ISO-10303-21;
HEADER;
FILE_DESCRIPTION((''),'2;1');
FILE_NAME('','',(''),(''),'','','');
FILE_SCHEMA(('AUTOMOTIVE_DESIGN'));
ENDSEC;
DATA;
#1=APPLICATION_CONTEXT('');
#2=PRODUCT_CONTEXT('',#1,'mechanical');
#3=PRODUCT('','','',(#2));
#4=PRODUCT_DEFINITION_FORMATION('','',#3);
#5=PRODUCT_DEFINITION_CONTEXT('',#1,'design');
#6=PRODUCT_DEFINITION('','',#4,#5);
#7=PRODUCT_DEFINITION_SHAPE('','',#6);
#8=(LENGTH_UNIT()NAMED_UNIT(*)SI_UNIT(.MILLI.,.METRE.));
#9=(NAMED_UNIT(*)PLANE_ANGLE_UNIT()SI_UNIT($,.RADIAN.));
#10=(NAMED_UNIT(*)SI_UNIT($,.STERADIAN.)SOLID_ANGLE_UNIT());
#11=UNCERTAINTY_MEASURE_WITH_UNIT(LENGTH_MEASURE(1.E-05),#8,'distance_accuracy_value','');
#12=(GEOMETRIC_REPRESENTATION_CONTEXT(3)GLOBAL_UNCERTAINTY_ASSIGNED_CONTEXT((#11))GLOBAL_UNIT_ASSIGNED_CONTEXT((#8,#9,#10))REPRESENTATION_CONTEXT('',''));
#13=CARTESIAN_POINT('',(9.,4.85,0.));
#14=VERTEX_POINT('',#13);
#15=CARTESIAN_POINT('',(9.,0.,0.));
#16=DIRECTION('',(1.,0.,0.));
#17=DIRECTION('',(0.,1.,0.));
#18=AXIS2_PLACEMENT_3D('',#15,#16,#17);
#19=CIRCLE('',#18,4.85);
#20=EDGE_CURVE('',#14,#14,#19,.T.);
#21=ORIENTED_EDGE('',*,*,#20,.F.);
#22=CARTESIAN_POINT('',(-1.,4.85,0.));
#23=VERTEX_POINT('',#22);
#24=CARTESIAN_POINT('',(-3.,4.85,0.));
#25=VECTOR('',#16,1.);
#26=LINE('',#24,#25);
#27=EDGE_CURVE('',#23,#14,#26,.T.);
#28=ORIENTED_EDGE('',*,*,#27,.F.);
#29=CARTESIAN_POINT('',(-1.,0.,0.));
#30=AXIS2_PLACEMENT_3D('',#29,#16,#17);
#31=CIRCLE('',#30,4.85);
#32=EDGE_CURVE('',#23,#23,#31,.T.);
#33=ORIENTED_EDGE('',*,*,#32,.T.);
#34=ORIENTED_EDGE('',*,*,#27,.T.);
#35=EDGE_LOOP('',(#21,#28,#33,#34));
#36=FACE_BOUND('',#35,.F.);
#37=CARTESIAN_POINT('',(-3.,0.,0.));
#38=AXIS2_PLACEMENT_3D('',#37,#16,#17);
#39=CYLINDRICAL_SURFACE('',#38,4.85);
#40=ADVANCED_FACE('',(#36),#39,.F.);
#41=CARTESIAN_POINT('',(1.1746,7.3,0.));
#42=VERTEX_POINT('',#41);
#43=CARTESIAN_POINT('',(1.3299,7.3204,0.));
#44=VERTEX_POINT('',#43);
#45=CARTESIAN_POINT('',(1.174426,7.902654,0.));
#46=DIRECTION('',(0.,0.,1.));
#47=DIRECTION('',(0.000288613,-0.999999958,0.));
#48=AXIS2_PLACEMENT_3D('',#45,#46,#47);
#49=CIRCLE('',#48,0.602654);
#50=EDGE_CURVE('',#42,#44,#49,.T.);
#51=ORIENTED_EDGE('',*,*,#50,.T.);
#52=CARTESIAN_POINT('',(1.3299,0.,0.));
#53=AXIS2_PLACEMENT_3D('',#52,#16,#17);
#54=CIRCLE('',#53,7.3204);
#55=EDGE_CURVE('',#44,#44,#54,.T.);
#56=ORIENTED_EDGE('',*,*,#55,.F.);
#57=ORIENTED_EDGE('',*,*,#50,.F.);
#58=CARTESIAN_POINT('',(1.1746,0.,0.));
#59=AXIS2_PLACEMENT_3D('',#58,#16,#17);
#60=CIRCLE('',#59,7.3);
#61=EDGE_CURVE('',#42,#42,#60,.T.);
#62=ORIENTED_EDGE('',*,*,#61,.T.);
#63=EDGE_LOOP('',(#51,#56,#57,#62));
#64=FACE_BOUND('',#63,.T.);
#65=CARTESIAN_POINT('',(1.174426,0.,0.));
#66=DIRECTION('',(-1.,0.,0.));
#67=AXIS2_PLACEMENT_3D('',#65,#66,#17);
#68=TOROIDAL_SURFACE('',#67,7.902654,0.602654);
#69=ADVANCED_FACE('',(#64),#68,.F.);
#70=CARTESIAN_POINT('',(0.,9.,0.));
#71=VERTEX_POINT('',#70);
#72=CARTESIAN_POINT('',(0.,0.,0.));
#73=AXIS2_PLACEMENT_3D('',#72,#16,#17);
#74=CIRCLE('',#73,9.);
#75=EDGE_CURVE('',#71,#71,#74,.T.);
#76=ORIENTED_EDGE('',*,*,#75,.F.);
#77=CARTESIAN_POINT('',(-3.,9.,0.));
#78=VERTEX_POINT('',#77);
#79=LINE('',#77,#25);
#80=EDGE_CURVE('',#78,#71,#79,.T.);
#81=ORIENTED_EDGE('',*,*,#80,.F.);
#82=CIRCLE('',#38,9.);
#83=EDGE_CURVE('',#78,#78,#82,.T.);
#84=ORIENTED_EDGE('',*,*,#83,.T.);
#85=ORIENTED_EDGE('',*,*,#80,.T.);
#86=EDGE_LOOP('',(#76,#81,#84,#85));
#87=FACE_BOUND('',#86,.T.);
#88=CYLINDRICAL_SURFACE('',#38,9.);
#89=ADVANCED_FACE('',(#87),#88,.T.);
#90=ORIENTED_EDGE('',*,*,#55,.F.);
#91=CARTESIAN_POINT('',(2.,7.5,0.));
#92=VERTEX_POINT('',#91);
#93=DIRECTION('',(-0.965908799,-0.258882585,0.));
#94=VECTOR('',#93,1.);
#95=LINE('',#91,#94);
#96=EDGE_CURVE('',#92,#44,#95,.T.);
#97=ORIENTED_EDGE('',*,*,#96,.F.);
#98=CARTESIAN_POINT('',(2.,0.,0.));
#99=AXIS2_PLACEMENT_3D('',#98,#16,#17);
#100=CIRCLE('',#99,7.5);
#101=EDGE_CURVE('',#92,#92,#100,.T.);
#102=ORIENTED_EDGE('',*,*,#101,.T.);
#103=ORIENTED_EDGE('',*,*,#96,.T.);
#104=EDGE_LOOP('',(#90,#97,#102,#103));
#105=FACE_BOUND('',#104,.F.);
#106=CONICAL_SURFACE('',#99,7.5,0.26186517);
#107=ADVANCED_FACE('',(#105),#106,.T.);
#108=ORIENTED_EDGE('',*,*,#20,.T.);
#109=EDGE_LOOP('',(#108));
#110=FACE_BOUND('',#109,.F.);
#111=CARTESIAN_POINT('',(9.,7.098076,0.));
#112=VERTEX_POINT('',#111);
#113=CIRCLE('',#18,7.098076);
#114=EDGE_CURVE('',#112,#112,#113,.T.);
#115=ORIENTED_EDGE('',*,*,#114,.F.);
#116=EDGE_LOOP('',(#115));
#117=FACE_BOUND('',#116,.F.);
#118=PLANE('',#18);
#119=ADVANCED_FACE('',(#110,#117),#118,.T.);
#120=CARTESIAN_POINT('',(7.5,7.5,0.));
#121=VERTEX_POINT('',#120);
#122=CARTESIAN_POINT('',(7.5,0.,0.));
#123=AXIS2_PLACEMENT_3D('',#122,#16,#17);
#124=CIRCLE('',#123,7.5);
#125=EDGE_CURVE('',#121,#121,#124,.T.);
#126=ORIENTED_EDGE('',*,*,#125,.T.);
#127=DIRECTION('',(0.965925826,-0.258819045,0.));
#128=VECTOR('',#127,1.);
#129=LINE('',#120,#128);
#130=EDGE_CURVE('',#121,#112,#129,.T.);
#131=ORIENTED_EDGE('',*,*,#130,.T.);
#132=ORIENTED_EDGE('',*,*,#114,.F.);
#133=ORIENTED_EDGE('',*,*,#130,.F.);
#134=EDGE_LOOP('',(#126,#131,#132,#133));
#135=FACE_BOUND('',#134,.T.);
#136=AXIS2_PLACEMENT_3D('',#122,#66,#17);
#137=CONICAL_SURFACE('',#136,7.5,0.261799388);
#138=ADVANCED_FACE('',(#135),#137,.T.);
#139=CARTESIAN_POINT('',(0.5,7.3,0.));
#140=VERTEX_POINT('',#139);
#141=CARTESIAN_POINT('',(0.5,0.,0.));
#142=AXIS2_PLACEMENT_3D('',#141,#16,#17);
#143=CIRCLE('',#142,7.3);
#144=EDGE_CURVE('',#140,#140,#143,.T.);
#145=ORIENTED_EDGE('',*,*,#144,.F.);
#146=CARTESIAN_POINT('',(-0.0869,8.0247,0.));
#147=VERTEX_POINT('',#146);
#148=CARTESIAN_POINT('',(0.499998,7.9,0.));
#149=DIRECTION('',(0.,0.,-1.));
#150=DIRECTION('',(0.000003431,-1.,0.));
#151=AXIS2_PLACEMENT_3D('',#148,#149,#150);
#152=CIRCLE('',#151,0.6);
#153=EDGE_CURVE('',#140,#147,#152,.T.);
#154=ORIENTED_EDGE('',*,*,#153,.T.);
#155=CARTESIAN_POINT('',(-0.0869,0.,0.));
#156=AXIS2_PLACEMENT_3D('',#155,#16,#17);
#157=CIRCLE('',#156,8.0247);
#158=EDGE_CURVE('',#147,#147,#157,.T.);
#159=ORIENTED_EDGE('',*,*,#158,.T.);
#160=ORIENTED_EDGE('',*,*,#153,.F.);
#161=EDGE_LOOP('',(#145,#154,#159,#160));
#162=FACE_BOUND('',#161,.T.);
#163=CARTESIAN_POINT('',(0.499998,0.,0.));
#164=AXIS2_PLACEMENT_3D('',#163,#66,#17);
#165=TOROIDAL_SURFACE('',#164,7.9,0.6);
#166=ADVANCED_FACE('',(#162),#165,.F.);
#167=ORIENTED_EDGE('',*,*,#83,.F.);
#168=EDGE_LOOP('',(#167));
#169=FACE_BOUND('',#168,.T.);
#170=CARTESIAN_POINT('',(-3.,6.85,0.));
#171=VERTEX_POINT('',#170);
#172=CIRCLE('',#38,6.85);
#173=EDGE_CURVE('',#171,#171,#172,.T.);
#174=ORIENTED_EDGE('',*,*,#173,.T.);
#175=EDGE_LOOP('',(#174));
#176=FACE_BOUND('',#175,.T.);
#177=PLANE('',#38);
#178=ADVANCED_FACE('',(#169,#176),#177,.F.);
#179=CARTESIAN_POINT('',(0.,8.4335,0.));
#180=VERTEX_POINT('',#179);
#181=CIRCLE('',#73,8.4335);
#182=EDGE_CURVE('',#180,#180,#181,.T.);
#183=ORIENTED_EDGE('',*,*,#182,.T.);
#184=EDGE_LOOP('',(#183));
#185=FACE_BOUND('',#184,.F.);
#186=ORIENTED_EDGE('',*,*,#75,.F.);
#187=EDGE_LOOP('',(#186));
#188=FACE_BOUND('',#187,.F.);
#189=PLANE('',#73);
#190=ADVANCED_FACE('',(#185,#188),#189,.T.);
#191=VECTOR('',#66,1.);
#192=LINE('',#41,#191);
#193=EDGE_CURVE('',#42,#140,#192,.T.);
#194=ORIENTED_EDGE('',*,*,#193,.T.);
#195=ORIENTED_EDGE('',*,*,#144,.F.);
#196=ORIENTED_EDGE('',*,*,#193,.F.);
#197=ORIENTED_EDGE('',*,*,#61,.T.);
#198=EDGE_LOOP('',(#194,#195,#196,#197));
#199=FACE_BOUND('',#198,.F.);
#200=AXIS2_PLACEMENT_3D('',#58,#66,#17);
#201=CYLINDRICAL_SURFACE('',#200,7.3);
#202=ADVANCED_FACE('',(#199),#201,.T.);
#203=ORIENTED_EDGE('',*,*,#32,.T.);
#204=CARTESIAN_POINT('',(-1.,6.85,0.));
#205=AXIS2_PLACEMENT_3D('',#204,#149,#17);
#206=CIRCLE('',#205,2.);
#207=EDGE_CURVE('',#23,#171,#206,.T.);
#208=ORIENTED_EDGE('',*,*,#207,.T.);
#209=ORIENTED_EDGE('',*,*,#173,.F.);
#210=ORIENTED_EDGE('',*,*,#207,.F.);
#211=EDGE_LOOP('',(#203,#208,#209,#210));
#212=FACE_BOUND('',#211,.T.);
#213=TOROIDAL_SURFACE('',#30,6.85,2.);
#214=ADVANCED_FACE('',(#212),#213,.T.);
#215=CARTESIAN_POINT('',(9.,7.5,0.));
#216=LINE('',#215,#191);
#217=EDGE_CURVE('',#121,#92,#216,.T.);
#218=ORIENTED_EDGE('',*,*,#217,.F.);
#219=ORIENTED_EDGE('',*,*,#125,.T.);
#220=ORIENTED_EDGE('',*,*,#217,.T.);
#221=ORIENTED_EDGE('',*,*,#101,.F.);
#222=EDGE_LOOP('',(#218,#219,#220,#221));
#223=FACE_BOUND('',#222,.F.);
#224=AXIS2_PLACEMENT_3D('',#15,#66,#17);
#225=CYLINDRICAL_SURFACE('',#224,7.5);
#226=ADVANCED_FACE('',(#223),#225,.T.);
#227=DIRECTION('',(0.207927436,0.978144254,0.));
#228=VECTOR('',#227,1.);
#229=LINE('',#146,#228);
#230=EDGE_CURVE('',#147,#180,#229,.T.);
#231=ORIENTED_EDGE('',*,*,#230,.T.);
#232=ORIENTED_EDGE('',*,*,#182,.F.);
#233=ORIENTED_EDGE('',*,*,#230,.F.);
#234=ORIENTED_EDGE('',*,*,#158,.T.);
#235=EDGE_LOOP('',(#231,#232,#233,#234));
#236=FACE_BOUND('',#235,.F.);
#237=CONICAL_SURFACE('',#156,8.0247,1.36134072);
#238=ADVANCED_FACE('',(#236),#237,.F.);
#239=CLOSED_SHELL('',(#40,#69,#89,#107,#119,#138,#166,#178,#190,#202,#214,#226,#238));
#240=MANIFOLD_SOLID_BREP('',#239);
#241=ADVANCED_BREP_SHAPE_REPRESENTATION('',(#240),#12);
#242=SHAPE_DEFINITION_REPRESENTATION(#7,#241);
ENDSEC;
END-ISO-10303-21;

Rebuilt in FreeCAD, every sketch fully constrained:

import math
import FreeCAD as App
import Part
import Sketcher
Q = App.Units.Quantity


def edges_at(feature, points):
    """Names of the edges that pass closest to the given points."""
    edges = feature.Shape.Edges
    near = lambda p: min(range(len(edges)), key=lambda i: edges[i].distToShape(Part.Vertex(*p))[0])
    return sorted({f"Edge{near(p) + 1}" for p in points})

doc = App.newDocument("Part")
body = doc.addObject("PartDesign::Body", "Body")

sketch1 = body.newObject("Sketcher::SketchObject", "Sketch")
sketch1.AttachmentSupport = (doc.getObject("XY_Plane"), [""])
sketch1.MapMode = "FlatFace"
sketch1.addGeometry(Part.LineSegment(App.Vector(9, 4.85, 0), App.Vector(9, 7.5, 0)), False)
sketch1.addGeometry(Part.LineSegment(App.Vector(9, 7.5, 0), App.Vector(2, 7.5, 0)), False)
sketch1.addGeometry(Part.LineSegment(App.Vector(2, 7.5, 0), App.Vector(1.3299, 7.3204, 0)), False)
sketch1.addGeometry(Part.ArcOfCircle(Part.Circle(App.Vector(1.174426, 7.902654, 0), App.Vector(0, 0, 1), 0.602654), math.radians(-89.983464), math.radians(-75.049635)), False)
sketch1.addGeometry(Part.LineSegment(App.Vector(1.1746, 7.3, 0), App.Vector(0.5, 7.3, 0)), False)
sketch1.addGeometry(Part.ArcOfCircle(Part.Circle(App.Vector(0.5, 7.9, 0), App.Vector(0, 0, 1), 0.600001), math.radians(168.004619), math.radians(270)), False)
sketch1.addGeometry(Part.LineSegment(App.Vector(-0.0869, 8.0247, 0), App.Vector(0, 8.4335, 0)), False)
sketch1.addGeometry(Part.LineSegment(App.Vector(0, 8.4335, 0), App.Vector(0, 9, 0)), False)
sketch1.addGeometry(Part.LineSegment(App.Vector(0, 9, 0), App.Vector(-3, 9, 0)), False)
sketch1.addGeometry(Part.LineSegment(App.Vector(-3, 9, 0), App.Vector(-3, 4.85, 0)), False)
sketch1.addGeometry(Part.LineSegment(App.Vector(-3, 4.85, 0), App.Vector(9, 4.85, 0)), False)
sketch1.addConstraint(Sketcher.Constraint("Coincident", 0, 2, 1, 1))
sketch1.addConstraint(Sketcher.Constraint("Coincident", 1, 2, 2, 1))
sketch1.addConstraint(Sketcher.Constraint("Coincident", 2, 2, 3, 2))
sketch1.addConstraint(Sketcher.Constraint("Tangent", 3, 1, 4, 1))
sketch1.addConstraint(Sketcher.Constraint("Tangent", 4, 2, 5, 2))
sketch1.addConstraint(Sketcher.Constraint("Tangent", 5, 1, 6, 1))
sketch1.addConstraint(Sketcher.Constraint("Coincident", 6, 2, 7, 1))
sketch1.addConstraint(Sketcher.Constraint("Coincident", 7, 2, 8, 1))
sketch1.addConstraint(Sketcher.Constraint("Coincident", 8, 2, 9, 1))
sketch1.addConstraint(Sketcher.Constraint("Coincident", 9, 2, 10, 1))
sketch1.addConstraint(Sketcher.Constraint("Coincident", 10, 2, 0, 1))
sketch1.addConstraint(Sketcher.Constraint("Vertical", 0))
sketch1.addConstraint(Sketcher.Constraint("Horizontal", 1))
sketch1.addConstraint(Sketcher.Constraint("Horizontal", 4))
sketch1.addConstraint(Sketcher.Constraint("Vertical", 7))
sketch1.addConstraint(Sketcher.Constraint("Horizontal", 8))
sketch1.addConstraint(Sketcher.Constraint("Vertical", 9))
sketch1.addConstraint(Sketcher.Constraint("Horizontal", 10))
sketch1.addConstraint(Sketcher.Constraint("PointOnObject", 6, 2, -2))
sketch1.addConstraint(Sketcher.Constraint("Radius", 5, 0.6))
sketch1.addConstraint(Sketcher.Constraint("DistanceX", 8, 2, 8, 1, 3.0))
sketch1.addConstraint(Sketcher.Constraint("DistanceX", 10, 1, 10, 2, 12.0))
sketch1.addConstraint(Sketcher.Constraint("DistanceX", -1, 1, 1, 2, 2.0))
sketch1.addConstraint(Sketcher.Constraint("DistanceY", 3, 1, 1, 2, 0.2))
sketch1.addConstraint(Sketcher.Constraint("Angle", 6, Q("77.999 deg")))
sketch1.addConstraint(Sketcher.Constraint("DistanceY", -1, 1, 7, 2, 9.0))
sketch1.addConstraint(Sketcher.Constraint("DistanceY", 0, 1, 0, 2, 2.65))
sketch1.addConstraint(Sketcher.Constraint("DistanceY", 9, 2, 9, 1, 4.15))
sketch1.addConstraint(Sketcher.Constraint("DistanceX", -1, 1, 5, 3, 0.5))
sketch1.addConstraint(Sketcher.Constraint("Radius", 3, 0.6027))
sketch1.addConstraint(Sketcher.Constraint("DistanceX", -1, 1, 2, 2, 1.33))
sketch1.addConstraint(Sketcher.Constraint("DistanceX", 4, 2, 4, 1, 0.6746))
revolution = body.newObject("PartDesign::Revolution", "Revolution")
revolution.Profile = sketch1
revolution.ReferenceAxis = (sketch1, ["H_Axis"])
revolution.Angle = 360
doc.recompute()

chamfer = body.newObject("PartDesign::Chamfer", "Chamfer")
chamfer.Base = (revolution, edges_at(revolution, [(9, -7.5, 0)]))
chamfer.ChamferType = "Distance and Angle"
chamfer.Size = 1.5
chamfer.Angle = 15
chamfer.FlipDirection = True
doc.recompute()

fillet = body.newObject("PartDesign::Fillet", "Fillet")
fillet.Base = (chamfer, edges_at(chamfer, [(-3, -4.85, 0)]))
fillet.Radius = 2

doc.recompute()
